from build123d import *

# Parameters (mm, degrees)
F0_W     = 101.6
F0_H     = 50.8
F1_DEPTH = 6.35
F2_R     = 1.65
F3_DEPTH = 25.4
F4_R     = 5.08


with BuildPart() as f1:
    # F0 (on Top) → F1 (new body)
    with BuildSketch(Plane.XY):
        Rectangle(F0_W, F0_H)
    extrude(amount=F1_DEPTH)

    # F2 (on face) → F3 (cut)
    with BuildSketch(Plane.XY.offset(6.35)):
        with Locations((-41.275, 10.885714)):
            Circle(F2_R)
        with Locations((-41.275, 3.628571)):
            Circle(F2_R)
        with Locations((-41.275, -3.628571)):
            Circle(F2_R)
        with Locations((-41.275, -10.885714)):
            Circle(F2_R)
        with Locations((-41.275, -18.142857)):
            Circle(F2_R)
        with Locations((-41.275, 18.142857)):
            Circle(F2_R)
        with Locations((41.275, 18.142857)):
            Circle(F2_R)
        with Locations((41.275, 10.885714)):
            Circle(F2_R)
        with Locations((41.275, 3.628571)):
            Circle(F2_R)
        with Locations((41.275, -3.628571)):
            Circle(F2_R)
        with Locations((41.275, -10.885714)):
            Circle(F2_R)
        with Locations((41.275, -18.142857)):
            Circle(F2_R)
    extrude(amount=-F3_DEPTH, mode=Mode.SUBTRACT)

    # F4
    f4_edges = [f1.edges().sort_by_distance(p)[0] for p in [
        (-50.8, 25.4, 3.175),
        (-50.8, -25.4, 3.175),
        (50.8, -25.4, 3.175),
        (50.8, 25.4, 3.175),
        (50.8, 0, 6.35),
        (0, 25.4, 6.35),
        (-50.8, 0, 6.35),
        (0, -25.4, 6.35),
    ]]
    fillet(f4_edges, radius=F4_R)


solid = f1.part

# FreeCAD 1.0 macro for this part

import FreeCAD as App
import Part
import Sketcher
from FreeCAD import Vector
Q = App.Units.Quantity


def edges_at(feature, points):
    """Names of the edges that pass closest to the given points."""
    edges = feature.Shape.Edges
    near = lambda p: min(range(len(edges)), key=lambda i: edges[i].distToShape(Part.Vertex(*p))[0])
    return sorted({f"Edge{near(p) + 1}" for p in points})


def add_polygon(sketch, points):
    """Adds a closed chain of lines whose ends are joined by coincident constraints."""
    first, n = sketch.GeometryCount, len(points)
    for a, b in zip(points, points[1:] + points[:1]):
        sketch.addGeometry(Part.LineSegment(App.Vector(*a, 0), App.Vector(*b, 0)), False)
    for i in range(n):
        sketch.addConstraint(Sketcher.Constraint("Coincident", first + i, 2, first + (i + 1) % n, 1))

doc = App.newDocument("Part")
params = doc.addObject("Spreadsheet::Sheet", "Params")
for row, (alias, value) in enumerate([
    ("sketch1_width", "4 in"),
    ("sketch1_height", "2 in"),
    ("pad1_length", "0.25 in"),
    ("pocket1_length", "1 in"),
    ("fillet_radius", "0.2 in"),
], start=1):
    params.set(f"A{row}", alias)
    params.set(f"B{row}", "=" + value)
    params.setAlias(f"B{row}", alias)

body = doc.addObject("PartDesign::Body", "Body")

# Sketch on XY plane
sketch1 = body.newObject("Sketcher::SketchObject", "Sketch")
sketch1.AttachmentSupport = (doc.getObject("XY_Plane"), [""])
sketch1.MapMode = "FlatFace"
add_polygon(sketch1, [(-51, 25), (-51, -25), (51, -25), (51, 25)])  # lines 0-3
sketch1.addConstraint(Sketcher.Constraint("Vertical", 0))
sketch1.addConstraint(Sketcher.Constraint("Horizontal", 1))
sketch1.addConstraint(Sketcher.Constraint("Vertical", 2))
sketch1.addConstraint(Sketcher.Constraint("Horizontal", 3))
sketch1.addConstraint(Sketcher.Constraint("Symmetric", 0, 2, 2, 2, -1, 1))
sketch1.addConstraint(Sketcher.Constraint("DistanceX", 1, 1, 1, 2, Q("4 in")))
sketch1.addConstraint(Sketcher.Constraint("DistanceY", 0, 2, 0, 1, Q("2 in")))
sketch1.setExpression("Constraints[9]", "Params.sketch1_width")
sketch1.setExpression("Constraints[10]", "Params.sketch1_height")
pad1 = body.newObject("PartDesign::Pad", "Pad")
pad1.Profile = sketch1
pad1.setExpression("Length", "Params.pad1_length")

# Sketch on XY plane
sketch2 = body.newObject("Sketcher::SketchObject", "Sketch001")
sketch2.AttachmentSupport = (doc.getObject("XY_Plane"), [""])
sketch2.MapMode = "FlatFace"
sketch2.AttachmentOffset = App.Placement(Vector(0, 0, 0.25 * 25.4), App.Rotation())
sketch2.addGeometry(Part.Circle(Vector(-41.3, 10.9, 0), Vector(0, 0, 1), 1.6), False)
sketch2.addGeometry(Part.Circle(Vector(-41.3, 3.6, 0), Vector(0, 0, 1), 1.6), False)
sketch2.addGeometry(Part.Circle(Vector(-41.3, -3.6, 0), Vector(0, 0, 1), 1.6), False)
sketch2.addGeometry(Part.Circle(Vector(-41.3, -10.9, 0), Vector(0, 0, 1), 1.6), False)
sketch2.addGeometry(Part.Circle(Vector(-41.3, -18.1, 0), Vector(0, 0, 1), 1.6), False)
sketch2.addGeometry(Part.Circle(Vector(-41.3, 18.1, 0), Vector(0, 0, 1), 1.6), False)
sketch2.addGeometry(Part.Circle(Vector(41.3, 18.1, 0), Vector(0, 0, 1), 1.6), False)
sketch2.addGeometry(Part.Circle(Vector(41.3, 10.9, 0), Vector(0, 0, 1), 1.6), False)
sketch2.addGeometry(Part.Circle(Vector(41.3, 3.6, 0), Vector(0, 0, 1), 1.6), False)
sketch2.addGeometry(Part.Circle(Vector(41.3, -3.6, 0), Vector(0, 0, 1), 1.6), False)
sketch2.addGeometry(Part.Circle(Vector(41.3, -10.9, 0), Vector(0, 0, 1), 1.6), False)
sketch2.addGeometry(Part.Circle(Vector(41.3, -18.1, 0), Vector(0, 0, 1), 1.6), False)
sketch2.addConstraint(Sketcher.Constraint("Equal", 0, 1))
sketch2.addConstraint(Sketcher.Constraint("Equal", 1, 2))
sketch2.addConstraint(Sketcher.Constraint("Equal", 2, 3))
sketch2.addConstraint(Sketcher.Constraint("Equal", 3, 4))
sketch2.addConstraint(Sketcher.Constraint("Equal", 4, 5))
sketch2.addConstraint(Sketcher.Constraint("Equal", 5, 6))
sketch2.addConstraint(Sketcher.Constraint("Equal", 6, 7))
sketch2.addConstraint(Sketcher.Constraint("Equal", 7, 8))
sketch2.addConstraint(Sketcher.Constraint("Equal", 8, 9))
sketch2.addConstraint(Sketcher.Constraint("Equal", 9, 10))
sketch2.addConstraint(Sketcher.Constraint("Equal", 10, 11))
sketch2.addConstraint(Sketcher.Constraint("Symmetric", 4, 3, 6, 3, -1, 1))
sketch2.addConstraint(Sketcher.Constraint("Symmetric", 3, 3, 7, 3, -1, 1))
sketch2.addConstraint(Sketcher.Constraint("Symmetric", 2, 3, 8, 3, -1, 1))
sketch2.addConstraint(Sketcher.Constraint("Symmetric", 1, 3, 9, 3, -1, 1))
sketch2.addConstraint(Sketcher.Constraint("Symmetric", 0, 3, 10, 3, -1, 1))
sketch2.addConstraint(Sketcher.Constraint("Symmetric", 5, 3, 11, 3, -1, 1))
sketch2.addConstraint(Sketcher.Constraint("Symmetric", 5, 3, 6, 3, -2))
sketch2.addConstraint(Sketcher.Constraint("Symmetric", 0, 3, 7, 3, -2))
sketch2.addConstraint(Sketcher.Constraint("Symmetric", 1, 3, 8, 3, -2))
sketch2.addConstraint(Sketcher.Constraint("Vertical", 0, 3, 1, 3))
sketch2.addConstraint(Sketcher.Constraint("Vertical", 3, 3, 4, 3))
sketch2.addConstraint(Sketcher.Constraint("Diameter", 0, 3.3))
sketch2.addConstraint(Sketcher.Constraint("DistanceX", 5, 3, 6, 3, Q("3.25 in")))
sketch2.addConstraint(Sketcher.Constraint("DistanceY", -1, 1, 1, 3, 3.628571))
sketch2.addConstraint(Sketcher.Constraint("DistanceY", 3, 3, 0, 3, 21.771428))
sketch2.addConstraint(Sketcher.Constraint("DistanceY", 4, 3, 1, 3, 21.771428))
pocket1 = body.newObject("PartDesign::Pocket", "Pocket")
pocket1.Profile = sketch2
pocket1.setExpression("Length", "Params.pocket1_length")
doc.recompute()

fillet = body.newObject("PartDesign::Fillet", "Fillet")
fillet.Base = (pocket1, edges_at(pocket1, [
    (-50.8, 25.4, 3.175),
    (-50.8, -25.4, 3.175),
    (50.8, -25.4, 3.175),
    (50.8, 25.4, 3.175),
    (50.8, 0, 6.35),
    (0, 25.4, 6.35),
    (-50.8, 0, 6.35),
    (0, -25.4, 6.35),
]))
fillet.setExpression("Radius", "Params.fillet_radius")

doc.recompute()
